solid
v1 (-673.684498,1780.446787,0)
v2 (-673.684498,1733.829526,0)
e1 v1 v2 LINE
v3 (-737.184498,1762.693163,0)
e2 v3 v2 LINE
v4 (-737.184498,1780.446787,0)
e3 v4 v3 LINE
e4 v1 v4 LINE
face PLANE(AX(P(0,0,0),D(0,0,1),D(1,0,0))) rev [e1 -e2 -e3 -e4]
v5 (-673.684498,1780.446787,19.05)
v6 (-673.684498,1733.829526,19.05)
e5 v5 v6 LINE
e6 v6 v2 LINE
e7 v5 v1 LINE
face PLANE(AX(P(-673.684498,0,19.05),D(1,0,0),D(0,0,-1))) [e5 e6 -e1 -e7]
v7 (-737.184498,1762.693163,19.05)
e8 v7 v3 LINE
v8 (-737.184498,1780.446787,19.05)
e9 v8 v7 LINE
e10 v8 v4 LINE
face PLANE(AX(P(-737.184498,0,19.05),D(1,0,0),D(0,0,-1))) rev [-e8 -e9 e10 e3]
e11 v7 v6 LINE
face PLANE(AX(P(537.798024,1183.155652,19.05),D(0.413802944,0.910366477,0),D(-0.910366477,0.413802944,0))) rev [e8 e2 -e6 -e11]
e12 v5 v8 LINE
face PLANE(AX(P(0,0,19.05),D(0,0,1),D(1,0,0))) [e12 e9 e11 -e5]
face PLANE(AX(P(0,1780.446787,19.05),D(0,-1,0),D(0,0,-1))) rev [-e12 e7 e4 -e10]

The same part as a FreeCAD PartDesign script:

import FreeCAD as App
import Part
import Sketcher
from FreeCAD import Vector
Q = App.Units.Quantity


def add_polygon(sketch, points):
    """Adds a closed chain of lines whose ends are joined by coincident constraints."""
    first, n = sketch.GeometryCount, len(points)
    for a, b in zip(points, points[1:] + points[:1]):
        sketch.addGeometry(Part.LineSegment(App.Vector(*a, 0), App.Vector(*b, 0)), False)
    for i in range(n):
        sketch.addConstraint(Sketcher.Constraint("Coincident", first + i, 2, first + (i + 1) % n, 1))

doc = App.newDocument("Part")
params = doc.addObject("Spreadsheet::Sheet", "Params")
for row, (alias, value) in enumerate([
    ("sketch1_width", "2.5 in"),
    ("pad1_length", "0.75 in"),
], start=1):
    params.set(f"A{row}", alias)
    params.set(f"B{row}", "=" + value)
    params.setAlias(f"B{row}", alias)

body = doc.addObject("PartDesign::Body", "Body")

# Sketch on XY plane
sketch1 = body.newObject("Sketcher::SketchObject", "Sketch")
sketch1.AttachmentSupport = (doc.getObject("XY_Plane"), [""])
sketch1.MapMode = "FlatFace"
add_polygon(sketch1, [(-673.684498, 1733.829526), (-673.684498, 1780.446787), (-737.184498, 1780.446787), (-737.184498, 1762.693163)])  # lines 0-3
sketch1.addConstraint([
    Sketcher.Constraint("Vertical", 0),
    Sketcher.Constraint("Horizontal", 1),
    Sketcher.Constraint("Vertical", 2),
    Sketcher.Constraint("DistanceX", 1, 2, 1, 1, Q("2.5 in")),
    Sketcher.Constraint("DistanceY", 0, 1, 0, 2, Q("46.617261 mm")),
    Sketcher.Constraint("DistanceX", 0, 2, -1, 1, Q("673.684498 mm")),
    Sketcher.Constraint("Distance", 3, Q("69.752129 mm")),
    Sketcher.Constraint("DistanceY", -1, 1, 0, 2, Q("1780.446787 mm")),
])
sketch1.setExpression("Constraints[7]", "Params.sketch1_width")
pad1 = body.newObject("PartDesign::Pad", "Pad")
pad1.Profile = sketch1
pad1.setExpression("Length", "Params.pad1_length")

doc.recompute()
